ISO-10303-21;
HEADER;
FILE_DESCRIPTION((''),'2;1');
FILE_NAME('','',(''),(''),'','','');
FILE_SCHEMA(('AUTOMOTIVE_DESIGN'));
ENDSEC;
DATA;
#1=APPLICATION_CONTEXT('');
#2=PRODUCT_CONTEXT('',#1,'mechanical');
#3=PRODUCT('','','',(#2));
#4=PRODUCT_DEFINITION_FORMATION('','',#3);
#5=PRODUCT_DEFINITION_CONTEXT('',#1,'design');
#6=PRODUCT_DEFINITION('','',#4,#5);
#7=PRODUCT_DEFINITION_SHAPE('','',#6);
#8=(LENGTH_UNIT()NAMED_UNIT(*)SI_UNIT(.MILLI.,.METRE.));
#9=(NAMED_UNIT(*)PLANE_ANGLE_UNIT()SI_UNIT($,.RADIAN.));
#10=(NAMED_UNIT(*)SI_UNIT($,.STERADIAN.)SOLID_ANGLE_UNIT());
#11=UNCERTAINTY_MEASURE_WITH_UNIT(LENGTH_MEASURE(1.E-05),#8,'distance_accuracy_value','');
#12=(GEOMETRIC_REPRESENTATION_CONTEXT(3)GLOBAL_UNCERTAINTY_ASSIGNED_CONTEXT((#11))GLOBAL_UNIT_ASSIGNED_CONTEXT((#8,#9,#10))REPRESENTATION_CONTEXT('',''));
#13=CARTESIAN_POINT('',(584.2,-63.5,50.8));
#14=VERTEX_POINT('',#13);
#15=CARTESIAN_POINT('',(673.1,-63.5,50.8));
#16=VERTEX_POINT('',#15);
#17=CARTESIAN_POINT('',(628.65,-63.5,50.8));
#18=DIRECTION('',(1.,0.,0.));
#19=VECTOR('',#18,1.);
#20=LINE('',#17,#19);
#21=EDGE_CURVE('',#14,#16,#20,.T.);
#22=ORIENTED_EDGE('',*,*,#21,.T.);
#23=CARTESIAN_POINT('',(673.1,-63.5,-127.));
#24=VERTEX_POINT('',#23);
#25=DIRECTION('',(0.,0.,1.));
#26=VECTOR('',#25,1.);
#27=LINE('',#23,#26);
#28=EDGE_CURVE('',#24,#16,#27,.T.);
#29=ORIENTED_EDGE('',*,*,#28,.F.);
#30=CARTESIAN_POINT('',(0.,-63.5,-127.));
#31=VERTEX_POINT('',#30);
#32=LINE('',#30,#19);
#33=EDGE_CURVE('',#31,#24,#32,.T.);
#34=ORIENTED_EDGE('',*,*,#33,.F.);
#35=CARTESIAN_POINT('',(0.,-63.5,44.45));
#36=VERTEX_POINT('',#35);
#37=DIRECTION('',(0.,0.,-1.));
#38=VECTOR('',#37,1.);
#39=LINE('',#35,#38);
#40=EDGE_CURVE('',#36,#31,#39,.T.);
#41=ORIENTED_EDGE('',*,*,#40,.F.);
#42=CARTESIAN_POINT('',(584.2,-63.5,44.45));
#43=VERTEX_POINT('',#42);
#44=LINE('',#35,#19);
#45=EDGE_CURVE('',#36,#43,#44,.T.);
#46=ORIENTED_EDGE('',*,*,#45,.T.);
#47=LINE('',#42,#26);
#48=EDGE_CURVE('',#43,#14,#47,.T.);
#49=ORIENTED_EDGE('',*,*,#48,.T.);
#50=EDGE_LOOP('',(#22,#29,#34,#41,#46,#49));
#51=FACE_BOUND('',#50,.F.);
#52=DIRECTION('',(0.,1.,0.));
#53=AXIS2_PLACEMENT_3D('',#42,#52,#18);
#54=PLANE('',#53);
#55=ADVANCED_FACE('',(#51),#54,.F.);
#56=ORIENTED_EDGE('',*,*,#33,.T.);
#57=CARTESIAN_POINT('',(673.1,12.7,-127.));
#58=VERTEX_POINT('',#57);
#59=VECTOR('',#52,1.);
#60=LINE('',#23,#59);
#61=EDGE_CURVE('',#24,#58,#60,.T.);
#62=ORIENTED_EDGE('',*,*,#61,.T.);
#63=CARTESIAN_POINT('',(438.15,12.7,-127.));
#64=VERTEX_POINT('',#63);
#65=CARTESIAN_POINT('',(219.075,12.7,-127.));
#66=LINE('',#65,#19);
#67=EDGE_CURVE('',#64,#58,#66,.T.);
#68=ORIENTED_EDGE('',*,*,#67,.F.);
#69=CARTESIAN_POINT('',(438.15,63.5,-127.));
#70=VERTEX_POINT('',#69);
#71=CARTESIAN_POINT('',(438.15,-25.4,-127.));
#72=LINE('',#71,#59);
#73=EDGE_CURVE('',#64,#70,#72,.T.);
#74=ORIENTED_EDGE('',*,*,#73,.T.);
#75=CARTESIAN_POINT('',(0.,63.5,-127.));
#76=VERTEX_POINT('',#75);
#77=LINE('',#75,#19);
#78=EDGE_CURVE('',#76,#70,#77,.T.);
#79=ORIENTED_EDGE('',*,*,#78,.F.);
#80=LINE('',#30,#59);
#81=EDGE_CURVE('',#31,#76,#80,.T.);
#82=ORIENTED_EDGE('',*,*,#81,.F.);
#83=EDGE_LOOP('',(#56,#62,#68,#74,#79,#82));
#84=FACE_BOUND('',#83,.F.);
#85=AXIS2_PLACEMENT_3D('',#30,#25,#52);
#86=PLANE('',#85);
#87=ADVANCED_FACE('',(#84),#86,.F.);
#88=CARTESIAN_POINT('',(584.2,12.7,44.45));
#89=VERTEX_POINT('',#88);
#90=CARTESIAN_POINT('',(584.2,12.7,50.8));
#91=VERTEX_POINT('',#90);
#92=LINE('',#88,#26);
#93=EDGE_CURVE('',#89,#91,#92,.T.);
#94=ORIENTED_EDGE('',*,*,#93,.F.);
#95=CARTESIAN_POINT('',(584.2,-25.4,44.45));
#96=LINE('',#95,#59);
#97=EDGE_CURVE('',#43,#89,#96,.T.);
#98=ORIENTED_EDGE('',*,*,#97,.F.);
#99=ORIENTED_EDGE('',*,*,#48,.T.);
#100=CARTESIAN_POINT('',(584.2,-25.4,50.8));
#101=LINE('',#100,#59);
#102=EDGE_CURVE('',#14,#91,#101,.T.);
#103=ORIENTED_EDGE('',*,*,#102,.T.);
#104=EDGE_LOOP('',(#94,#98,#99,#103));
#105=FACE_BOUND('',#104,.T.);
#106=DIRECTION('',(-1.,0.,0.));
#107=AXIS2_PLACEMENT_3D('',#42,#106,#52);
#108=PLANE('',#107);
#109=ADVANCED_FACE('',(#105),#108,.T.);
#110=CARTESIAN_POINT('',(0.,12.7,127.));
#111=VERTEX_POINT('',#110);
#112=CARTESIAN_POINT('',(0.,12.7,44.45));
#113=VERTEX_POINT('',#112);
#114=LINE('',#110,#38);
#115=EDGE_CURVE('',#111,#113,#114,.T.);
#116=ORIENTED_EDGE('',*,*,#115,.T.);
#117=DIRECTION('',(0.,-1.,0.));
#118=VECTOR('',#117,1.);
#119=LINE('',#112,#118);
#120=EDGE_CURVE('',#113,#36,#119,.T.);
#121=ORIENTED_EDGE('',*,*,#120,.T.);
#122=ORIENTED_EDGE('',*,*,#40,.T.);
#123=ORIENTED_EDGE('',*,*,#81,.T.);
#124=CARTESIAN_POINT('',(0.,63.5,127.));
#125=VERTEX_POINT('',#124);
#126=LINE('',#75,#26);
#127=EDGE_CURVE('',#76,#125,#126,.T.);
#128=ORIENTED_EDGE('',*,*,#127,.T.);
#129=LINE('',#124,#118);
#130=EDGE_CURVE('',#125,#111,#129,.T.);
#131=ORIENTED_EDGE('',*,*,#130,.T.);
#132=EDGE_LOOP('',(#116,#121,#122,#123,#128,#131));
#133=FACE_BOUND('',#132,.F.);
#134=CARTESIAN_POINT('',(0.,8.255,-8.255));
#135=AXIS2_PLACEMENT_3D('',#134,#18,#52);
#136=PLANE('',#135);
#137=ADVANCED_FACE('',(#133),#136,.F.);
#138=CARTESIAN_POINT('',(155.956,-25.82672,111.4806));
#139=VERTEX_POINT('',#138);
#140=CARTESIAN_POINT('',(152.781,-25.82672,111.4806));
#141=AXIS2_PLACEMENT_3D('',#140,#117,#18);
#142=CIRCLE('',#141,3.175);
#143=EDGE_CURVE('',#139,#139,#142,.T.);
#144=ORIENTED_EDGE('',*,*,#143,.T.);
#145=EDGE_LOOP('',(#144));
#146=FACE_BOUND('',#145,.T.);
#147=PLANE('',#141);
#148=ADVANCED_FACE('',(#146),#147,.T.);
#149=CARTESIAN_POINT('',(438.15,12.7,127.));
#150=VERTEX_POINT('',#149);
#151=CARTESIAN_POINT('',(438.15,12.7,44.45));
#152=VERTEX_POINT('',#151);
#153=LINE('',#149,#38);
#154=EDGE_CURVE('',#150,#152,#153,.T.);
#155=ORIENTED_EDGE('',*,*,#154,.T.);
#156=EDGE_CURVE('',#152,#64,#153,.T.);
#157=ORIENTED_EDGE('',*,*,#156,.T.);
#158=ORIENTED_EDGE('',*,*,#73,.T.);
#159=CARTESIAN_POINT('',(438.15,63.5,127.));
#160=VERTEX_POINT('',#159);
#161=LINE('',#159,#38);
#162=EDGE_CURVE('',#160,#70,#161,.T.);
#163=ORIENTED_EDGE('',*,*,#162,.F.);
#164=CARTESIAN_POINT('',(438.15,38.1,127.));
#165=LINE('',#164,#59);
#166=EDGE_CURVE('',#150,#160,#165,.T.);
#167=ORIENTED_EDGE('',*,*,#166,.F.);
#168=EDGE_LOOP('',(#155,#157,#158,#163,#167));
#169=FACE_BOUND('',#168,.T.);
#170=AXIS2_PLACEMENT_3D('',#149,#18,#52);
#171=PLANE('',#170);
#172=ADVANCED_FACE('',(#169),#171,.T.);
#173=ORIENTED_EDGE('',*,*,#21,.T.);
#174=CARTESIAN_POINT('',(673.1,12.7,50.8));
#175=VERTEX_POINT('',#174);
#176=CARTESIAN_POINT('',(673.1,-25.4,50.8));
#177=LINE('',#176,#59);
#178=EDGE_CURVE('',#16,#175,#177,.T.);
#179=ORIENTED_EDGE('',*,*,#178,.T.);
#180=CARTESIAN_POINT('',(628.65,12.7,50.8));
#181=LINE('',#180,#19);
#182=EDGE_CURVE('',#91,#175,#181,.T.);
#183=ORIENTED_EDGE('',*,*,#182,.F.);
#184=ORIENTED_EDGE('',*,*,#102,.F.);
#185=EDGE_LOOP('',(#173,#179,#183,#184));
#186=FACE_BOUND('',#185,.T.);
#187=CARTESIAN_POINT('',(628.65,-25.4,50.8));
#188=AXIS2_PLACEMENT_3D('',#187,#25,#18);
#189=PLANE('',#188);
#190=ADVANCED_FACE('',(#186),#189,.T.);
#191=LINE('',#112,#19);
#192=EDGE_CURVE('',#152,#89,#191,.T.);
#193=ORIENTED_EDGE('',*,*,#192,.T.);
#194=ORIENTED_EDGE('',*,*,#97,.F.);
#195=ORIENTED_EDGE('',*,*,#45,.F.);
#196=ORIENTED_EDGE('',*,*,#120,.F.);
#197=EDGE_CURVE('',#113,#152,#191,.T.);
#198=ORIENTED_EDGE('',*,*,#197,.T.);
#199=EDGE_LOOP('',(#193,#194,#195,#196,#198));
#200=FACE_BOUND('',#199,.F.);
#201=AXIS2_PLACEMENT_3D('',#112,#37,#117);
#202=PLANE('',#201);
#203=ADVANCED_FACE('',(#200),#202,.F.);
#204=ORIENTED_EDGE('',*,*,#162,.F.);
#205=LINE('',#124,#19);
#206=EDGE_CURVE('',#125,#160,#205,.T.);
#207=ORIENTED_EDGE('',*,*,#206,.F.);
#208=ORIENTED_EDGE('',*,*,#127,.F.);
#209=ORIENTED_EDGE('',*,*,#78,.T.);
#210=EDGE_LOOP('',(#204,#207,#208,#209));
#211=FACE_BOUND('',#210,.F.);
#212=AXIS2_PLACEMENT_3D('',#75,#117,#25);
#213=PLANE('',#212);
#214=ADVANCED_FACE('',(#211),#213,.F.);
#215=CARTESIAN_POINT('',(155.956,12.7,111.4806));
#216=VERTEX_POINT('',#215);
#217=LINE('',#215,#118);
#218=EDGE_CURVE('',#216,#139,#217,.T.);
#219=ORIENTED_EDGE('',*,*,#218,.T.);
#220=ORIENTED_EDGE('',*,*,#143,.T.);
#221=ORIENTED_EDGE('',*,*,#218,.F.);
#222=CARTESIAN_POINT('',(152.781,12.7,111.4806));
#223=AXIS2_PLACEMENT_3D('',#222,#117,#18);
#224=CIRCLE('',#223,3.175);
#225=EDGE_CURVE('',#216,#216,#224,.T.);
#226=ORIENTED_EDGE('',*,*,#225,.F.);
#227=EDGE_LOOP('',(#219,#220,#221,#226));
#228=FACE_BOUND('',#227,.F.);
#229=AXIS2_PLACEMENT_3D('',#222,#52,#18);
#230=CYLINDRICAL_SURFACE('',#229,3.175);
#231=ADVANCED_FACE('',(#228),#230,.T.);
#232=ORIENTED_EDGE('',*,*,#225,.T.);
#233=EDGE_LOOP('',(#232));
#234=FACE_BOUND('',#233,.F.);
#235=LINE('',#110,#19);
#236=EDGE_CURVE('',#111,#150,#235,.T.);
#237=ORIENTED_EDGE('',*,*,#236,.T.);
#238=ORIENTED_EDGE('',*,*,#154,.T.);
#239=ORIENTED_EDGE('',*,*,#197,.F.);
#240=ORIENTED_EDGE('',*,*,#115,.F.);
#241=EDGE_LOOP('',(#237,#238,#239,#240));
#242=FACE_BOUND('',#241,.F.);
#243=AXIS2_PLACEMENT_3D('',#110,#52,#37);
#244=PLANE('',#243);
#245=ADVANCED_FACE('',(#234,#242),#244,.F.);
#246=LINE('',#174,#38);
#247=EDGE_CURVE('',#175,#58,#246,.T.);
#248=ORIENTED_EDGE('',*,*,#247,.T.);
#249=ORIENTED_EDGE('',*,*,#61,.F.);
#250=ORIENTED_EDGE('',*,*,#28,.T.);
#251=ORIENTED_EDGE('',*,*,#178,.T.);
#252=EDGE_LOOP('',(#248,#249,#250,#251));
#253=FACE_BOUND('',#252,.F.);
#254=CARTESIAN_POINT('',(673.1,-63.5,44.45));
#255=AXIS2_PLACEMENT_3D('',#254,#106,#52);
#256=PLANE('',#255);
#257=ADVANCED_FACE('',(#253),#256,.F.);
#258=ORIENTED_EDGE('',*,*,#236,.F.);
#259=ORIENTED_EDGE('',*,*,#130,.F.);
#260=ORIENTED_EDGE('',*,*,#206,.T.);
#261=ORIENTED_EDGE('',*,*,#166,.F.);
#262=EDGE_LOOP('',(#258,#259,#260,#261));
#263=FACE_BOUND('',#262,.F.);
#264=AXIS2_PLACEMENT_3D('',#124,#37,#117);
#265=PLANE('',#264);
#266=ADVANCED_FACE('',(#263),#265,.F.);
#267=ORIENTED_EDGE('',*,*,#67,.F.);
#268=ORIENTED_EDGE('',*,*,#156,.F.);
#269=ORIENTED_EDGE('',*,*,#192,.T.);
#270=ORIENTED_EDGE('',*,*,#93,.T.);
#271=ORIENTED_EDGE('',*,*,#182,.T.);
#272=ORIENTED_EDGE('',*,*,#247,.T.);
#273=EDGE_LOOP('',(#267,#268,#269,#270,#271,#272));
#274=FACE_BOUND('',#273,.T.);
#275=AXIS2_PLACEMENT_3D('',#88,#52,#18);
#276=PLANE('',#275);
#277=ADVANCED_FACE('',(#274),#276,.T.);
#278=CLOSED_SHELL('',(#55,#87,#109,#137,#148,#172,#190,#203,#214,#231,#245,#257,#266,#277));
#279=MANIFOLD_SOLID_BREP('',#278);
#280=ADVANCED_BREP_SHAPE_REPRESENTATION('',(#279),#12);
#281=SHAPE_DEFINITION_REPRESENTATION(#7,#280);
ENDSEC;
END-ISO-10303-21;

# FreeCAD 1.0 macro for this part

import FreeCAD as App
import Part
import Sketcher
Q = App.Units.Quantity

doc = App.newDocument("Part")
params = doc.addObject("Spreadsheet::Sheet", "Params")
for row, (alias, value) in enumerate([
    ("sketch1_width", "5 in"),
    ("sketch1_width2", "2 in"),
    ("sketch1_height", "10 in"),
    ("sketch1_height2", "6.75 in"),
    ("pad1_length", "26.5 in"),
    ("sketch2_height", "2 in"),
    ("sketch2_width", "9.25 in"),
    ("sketch3_height", "3 in"),
    ("sketch3_width", "3.5 in"),
    ("pad2_length", "0.25 in"),
    ("sketch4_diameter", "0.25 in"),
    ("pad3_length", "1.5168 in"),
], start=1):
    params.set(f"A{row}", alias)
    params.set(f"B{row}", "=" + value)
    params.setAlias(f"B{row}", alias)

body = doc.addObject("PartDesign::Body", "Body")

# Sketch on YZ plane
sketch1 = body.newObject("Sketcher::SketchObject", "Sketch")
sketch1.AttachmentSupport = (doc.getObject("YZ_Plane"), [""])
sketch1.MapMode = "FlatFace"
sketch1.addGeometry(Part.LineSegment(App.Vector(-64, 44, 0), App.Vector(-64, -127, 0)), False)
sketch1.addGeometry(Part.LineSegment(App.Vector(-64, -127, 0), App.Vector(64, -127, 0)), False)
sketch1.addGeometry(Part.LineSegment(App.Vector(64, -127, 0), App.Vector(64, 127, 0)), False)
sketch1.addGeometry(Part.LineSegment(App.Vector(64, 127, 0), App.Vector(13, 127, 0)), False)
sketch1.addGeometry(Part.LineSegment(App.Vector(13, 127, 0), App.Vector(13, 44, 0)), False)
sketch1.addGeometry(Part.LineSegment(App.Vector(13, 44, 0), App.Vector(-64, 44, 0)), False)
sketch1.addConstraint(Sketcher.Constraint("Coincident", 0, 2, 1, 1))
sketch1.addConstraint(Sketcher.Constraint("Coincident", 1, 2, 2, 1))
sketch1.addConstraint(Sketcher.Constraint("Coincident", 2, 2, 3, 1))
sketch1.addConstraint(Sketcher.Constraint("Coincident", 3, 2, 4, 1))
sketch1.addConstraint(Sketcher.Constraint("Coincident", 4, 2, 5, 1))
sketch1.addConstraint(Sketcher.Constraint("Coincident", 5, 2, 0, 1))
sketch1.addConstraint(Sketcher.Constraint("Vertical", 0))
sketch1.addConstraint(Sketcher.Constraint("Horizontal", 1))
sketch1.addConstraint(Sketcher.Constraint("Vertical", 2))
sketch1.addConstraint(Sketcher.Constraint("Horizontal", 3))
sketch1.addConstraint(Sketcher.Constraint("Vertical", 4))
sketch1.addConstraint(Sketcher.Constraint("Horizontal", 5))
sketch1.addConstraint(Sketcher.Constraint("Symmetric", 0, 2, 2, 2, -1, 1))
sketch1.addConstraint(Sketcher.Constraint("DistanceX", 1, 1, 1, 2, Q("5 in")))
sketch1.addConstraint(Sketcher.Constraint("DistanceX", 3, 2, 3, 1, Q("2 in")))
sketch1.addConstraint(Sketcher.Constraint("DistanceY", 2, 1, 2, 2, Q("10 in")))
sketch1.addConstraint(Sketcher.Constraint("DistanceY", 0, 2, 0, 1, Q("6.75 in")))
sketch1.setExpression("Constraints[13]", "Params.sketch1_width")
sketch1.setExpression("Constraints[14]", "Params.sketch1_width2")
sketch1.setExpression("Constraints[15]", "Params.sketch1_height")
sketch1.setExpression("Constraints[16]", "Params.sketch1_height2")
pad1 = body.newObject("PartDesign::Pad", "Pad")
pad1.Profile = sketch1
pad1.setExpression("Length", "Params.pad1_length")

# Sketch on XY plane
sketch2 = body.newObject("Sketcher::SketchObject", "Sketch001")
sketch2.AttachmentSupport = (doc.getObject("XY_Plane"), [""])
sketch2.MapMode = "FlatFace"
sketch2.AttachmentOffset = App.Placement(App.Vector(0, 0, 5 * 25.4), App.Rotation())
sketch2.addGeometry(Part.LineSegment(App.Vector(438, 64, 0), App.Vector(438, 13, 0)), False)
sketch2.addGeometry(Part.LineSegment(App.Vector(438, 13, 0), App.Vector(673, 13, 0)), False)
sketch2.addGeometry(Part.LineSegment(App.Vector(673, 13, 0), App.Vector(673, 64, 0)), False)
sketch2.addGeometry(Part.LineSegment(App.Vector(673, 64, 0), App.Vector(438, 64, 0)), False)
sketch2.addConstraint(Sketcher.Constraint("Coincident", 0, 2, 1, 1))
sketch2.addConstraint(Sketcher.Constraint("Coincident", 1, 2, 2, 1))
sketch2.addConstraint(Sketcher.Constraint("Coincident", 2, 2, 3, 1))
sketch2.addConstraint(Sketcher.Constraint("Coincident", 3, 2, 0, 1))
sketch2.addConstraint(Sketcher.Constraint("Vertical", 0))
sketch2.addConstraint(Sketcher.Constraint("Horizontal", 1))
sketch2.addConstraint(Sketcher.Constraint("Vertical", 2))
sketch2.addConstraint(Sketcher.Constraint("Horizontal", 3))
sketch2.addConstraint(Sketcher.Constraint("DistanceY", 0, 2, 0, 1, Q("2 in")))
sketch2.addConstraint(Sketcher.Constraint("DistanceX", 1, 1, 1, 2, Q("9.25 in")))
sketch2.addConstraint(Sketcher.Constraint("DistanceY", -1, 1, 0, 2, Q("0.5 in")))
sketch2.addConstraint(Sketcher.Constraint("DistanceX", -1, 1, 1, 2, Q("26.5 in")))
sketch2.setExpression("Constraints[8]", "Params.sketch2_height")
sketch2.setExpression("Constraints[9]", "Params.sketch2_width")
pocket1 = body.newObject("PartDesign::Pocket", "Pocket")
pocket1.Profile = sketch2
pocket1.Type = "ThroughAll"

# Sketch on XY plane
sketch3 = body.newObject("Sketcher::SketchObject", "Sketch002")
sketch3.AttachmentSupport = (doc.getObject("XY_Plane"), [""])
sketch3.MapMode = "FlatFace"
sketch3.AttachmentOffset = App.Placement(App.Vector(0, 0, 1.75 * 25.4), App.Rotation())
sketch3.addGeometry(Part.LineSegment(App.Vector(584, 13, 0), App.Vector(584, -64, 0)), False)
sketch3.addGeometry(Part.LineSegment(App.Vector(584, -64, 0), App.Vector(673, -64, 0)), False)
sketch3.addGeometry(Part.LineSegment(App.Vector(673, -64, 0), App.Vector(673, 13, 0)), False)
sketch3.addGeometry(Part.LineSegment(App.Vector(673, 13, 0), App.Vector(584, 13, 0)), False)
sketch3.addConstraint(Sketcher.Constraint("Coincident", 0, 2, 1, 1))
sketch3.addConstraint(Sketcher.Constraint("Coincident", 1, 2, 2, 1))
sketch3.addConstraint(Sketcher.Constraint("Coincident", 2, 2, 3, 1))
sketch3.addConstraint(Sketcher.Constraint("Coincident", 3, 2, 0, 1))
sketch3.addConstraint(Sketcher.Constraint("Vertical", 0))
sketch3.addConstraint(Sketcher.Constraint("Horizontal", 1))
sketch3.addConstraint(Sketcher.Constraint("Vertical", 2))
sketch3.addConstraint(Sketcher.Constraint("Horizontal", 3))
sketch3.addConstraint(Sketcher.Constraint("DistanceY", 0, 2, 0, 1, Q("3 in")))
sketch3.addConstraint(Sketcher.Constraint("DistanceX", 1, 1, 1, 2, Q("3.5 in")))
sketch3.addConstraint(Sketcher.Constraint("DistanceX", -1, 1, 0, 2, Q("23 in")))
sketch3.addConstraint(Sketcher.Constraint("DistanceY", 0, 2, -1, 1, Q("2.5 in")))
sketch3.setExpression("Constraints[8]", "Params.sketch3_height")
sketch3.setExpression("Constraints[9]", "Params.sketch3_width")
pad2 = body.newObject("PartDesign::Pad", "Pad001")
pad2.Profile = sketch3
pad2.setExpression("Length", "Params.pad2_length")

# Sketch on XZ plane
sketch4 = body.newObject("Sketcher::SketchObject", "Sketch003")
sketch4.AttachmentSupport = (doc.getObject("XZ_Plane"), [""])
sketch4.MapMode = "FlatFace"
sketch4.AttachmentOffset = App.Placement(App.Vector(0, 0, -0.5 * 25.4), App.Rotation())
sketch4.addGeometry(Part.Circle(App.Vector(152.8, 111.5, 0), App.Vector(0, 0, 1), 3.2), False)
sketch4.addConstraint(Sketcher.Constraint("Diameter", 0, Q("0.25 in")))
sketch4.addConstraint(Sketcher.Constraint("DistanceX", -1, 1, 0, 3, Q("6.015 in")))
sketch4.addConstraint(Sketcher.Constraint("DistanceY", -1, 1, 0, 3, Q("4.389 in")))
sketch4.setExpression("Constraints[0]", "Params.sketch4_diameter")
pad3 = body.newObject("PartDesign::Pad", "Pad002")
pad3.Profile = sketch4
pad3.setExpression("Length", "Params.pad3_length")

doc.recompute()
